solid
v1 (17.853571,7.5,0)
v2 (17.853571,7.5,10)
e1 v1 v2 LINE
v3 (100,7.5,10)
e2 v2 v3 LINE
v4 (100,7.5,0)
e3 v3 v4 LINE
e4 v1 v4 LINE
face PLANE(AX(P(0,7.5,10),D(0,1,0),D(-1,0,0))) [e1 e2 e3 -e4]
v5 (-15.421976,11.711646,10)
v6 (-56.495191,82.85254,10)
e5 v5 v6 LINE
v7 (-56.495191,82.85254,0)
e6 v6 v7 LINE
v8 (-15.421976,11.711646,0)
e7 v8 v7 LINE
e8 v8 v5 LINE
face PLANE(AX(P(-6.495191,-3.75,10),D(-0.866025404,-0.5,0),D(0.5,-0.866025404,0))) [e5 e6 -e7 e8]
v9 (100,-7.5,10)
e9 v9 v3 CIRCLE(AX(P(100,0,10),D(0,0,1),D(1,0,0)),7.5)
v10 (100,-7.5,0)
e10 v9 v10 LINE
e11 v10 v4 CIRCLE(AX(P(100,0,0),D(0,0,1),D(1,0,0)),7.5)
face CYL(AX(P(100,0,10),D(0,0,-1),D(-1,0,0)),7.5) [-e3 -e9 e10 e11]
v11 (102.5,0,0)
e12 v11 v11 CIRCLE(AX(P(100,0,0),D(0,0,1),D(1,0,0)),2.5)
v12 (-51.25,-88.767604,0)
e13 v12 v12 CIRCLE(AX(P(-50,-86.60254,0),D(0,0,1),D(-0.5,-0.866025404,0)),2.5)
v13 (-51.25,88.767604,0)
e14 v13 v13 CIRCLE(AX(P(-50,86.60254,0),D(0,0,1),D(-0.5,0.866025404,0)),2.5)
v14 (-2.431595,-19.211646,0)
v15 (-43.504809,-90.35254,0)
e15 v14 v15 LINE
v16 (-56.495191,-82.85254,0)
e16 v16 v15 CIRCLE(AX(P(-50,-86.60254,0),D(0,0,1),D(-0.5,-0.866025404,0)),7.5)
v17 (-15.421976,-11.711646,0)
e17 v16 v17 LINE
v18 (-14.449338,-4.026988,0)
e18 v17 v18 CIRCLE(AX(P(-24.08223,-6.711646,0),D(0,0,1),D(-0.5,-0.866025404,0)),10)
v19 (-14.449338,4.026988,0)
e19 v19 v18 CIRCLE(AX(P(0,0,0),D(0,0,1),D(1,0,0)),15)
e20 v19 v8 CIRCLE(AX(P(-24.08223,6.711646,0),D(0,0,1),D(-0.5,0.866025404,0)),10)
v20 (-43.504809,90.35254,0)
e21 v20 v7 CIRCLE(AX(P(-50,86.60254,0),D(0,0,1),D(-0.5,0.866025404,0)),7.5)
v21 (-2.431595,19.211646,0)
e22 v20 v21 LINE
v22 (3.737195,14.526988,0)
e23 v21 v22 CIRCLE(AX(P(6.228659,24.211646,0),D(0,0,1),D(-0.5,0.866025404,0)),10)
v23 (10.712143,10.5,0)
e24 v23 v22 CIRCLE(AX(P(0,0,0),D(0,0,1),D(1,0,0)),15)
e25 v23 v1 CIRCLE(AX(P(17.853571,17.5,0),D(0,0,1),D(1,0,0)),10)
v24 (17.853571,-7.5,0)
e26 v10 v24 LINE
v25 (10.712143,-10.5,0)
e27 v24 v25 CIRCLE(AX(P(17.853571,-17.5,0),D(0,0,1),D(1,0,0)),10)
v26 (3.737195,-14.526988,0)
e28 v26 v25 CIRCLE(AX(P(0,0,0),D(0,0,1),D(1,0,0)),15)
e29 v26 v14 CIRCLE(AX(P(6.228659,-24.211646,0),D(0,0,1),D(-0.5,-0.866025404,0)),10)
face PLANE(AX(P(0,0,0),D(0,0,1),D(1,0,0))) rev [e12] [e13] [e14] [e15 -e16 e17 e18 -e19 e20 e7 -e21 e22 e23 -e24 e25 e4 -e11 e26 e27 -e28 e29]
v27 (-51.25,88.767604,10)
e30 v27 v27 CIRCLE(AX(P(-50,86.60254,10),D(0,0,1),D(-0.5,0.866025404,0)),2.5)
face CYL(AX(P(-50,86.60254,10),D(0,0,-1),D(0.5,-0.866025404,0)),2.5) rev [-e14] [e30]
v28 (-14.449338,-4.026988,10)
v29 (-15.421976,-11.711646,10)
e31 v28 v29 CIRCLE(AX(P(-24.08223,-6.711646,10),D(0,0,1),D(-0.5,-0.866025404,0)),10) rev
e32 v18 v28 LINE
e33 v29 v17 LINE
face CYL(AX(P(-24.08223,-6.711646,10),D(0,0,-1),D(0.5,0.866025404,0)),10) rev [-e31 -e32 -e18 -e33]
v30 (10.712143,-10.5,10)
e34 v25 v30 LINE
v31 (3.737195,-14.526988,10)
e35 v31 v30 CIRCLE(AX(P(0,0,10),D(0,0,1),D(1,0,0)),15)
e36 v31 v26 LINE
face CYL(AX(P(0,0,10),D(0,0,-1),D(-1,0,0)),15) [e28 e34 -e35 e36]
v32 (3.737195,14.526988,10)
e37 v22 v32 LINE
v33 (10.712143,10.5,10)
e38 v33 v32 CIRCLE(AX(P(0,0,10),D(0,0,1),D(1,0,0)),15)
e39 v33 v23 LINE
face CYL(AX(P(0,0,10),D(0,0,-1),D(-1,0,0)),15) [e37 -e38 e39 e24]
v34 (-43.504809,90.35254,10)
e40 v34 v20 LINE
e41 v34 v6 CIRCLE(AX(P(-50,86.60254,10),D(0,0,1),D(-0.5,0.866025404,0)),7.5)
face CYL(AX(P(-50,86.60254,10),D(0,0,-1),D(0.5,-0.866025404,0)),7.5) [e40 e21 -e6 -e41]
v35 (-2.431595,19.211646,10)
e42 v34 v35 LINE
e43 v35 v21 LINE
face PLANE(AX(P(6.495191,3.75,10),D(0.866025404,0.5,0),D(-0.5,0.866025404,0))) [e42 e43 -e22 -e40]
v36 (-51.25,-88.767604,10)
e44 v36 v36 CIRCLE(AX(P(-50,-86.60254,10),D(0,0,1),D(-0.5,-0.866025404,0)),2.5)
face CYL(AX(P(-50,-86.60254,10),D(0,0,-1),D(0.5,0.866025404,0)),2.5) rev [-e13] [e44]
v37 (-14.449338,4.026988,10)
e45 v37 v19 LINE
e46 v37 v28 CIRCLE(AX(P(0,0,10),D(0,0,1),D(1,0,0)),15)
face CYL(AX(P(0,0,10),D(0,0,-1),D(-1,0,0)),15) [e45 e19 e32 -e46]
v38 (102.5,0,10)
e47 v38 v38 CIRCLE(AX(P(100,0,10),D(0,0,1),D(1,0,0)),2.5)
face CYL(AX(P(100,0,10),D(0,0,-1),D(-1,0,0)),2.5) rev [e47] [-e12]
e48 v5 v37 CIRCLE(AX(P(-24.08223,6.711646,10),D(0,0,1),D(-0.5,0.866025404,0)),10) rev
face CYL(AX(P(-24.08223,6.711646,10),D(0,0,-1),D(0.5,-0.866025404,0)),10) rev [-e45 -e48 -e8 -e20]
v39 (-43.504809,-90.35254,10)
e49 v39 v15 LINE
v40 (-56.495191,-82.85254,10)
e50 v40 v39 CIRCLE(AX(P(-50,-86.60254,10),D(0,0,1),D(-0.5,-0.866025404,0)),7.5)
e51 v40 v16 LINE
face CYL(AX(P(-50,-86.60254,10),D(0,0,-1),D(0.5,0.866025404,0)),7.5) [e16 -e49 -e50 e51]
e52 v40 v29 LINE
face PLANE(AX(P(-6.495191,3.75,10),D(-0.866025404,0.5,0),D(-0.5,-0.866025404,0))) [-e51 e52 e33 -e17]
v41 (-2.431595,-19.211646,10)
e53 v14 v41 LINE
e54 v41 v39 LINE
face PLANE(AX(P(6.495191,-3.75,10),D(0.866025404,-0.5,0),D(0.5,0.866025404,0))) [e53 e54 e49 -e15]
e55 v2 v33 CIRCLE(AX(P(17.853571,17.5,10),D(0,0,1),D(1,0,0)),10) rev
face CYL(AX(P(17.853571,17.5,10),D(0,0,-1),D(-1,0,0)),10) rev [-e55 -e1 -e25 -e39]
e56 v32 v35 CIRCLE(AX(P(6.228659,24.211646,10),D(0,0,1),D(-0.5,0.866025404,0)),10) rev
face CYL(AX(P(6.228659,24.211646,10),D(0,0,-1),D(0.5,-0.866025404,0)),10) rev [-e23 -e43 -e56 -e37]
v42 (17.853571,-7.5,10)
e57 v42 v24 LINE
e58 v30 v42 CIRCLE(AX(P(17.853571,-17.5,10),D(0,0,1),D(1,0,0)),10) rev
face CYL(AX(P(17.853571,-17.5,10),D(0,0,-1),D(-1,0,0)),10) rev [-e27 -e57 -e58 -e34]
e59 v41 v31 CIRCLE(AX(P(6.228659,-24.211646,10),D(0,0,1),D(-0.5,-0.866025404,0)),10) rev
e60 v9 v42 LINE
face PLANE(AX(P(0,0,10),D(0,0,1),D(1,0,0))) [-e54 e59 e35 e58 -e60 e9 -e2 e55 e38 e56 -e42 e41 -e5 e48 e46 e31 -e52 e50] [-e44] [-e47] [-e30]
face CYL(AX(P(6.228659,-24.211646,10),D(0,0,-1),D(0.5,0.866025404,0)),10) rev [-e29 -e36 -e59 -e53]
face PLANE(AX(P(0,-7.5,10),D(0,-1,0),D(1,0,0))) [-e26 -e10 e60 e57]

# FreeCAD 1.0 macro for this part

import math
import FreeCAD as App
import Part
import Sketcher
Q = App.Units.Quantity


def edges_at(feature, points):
    """Names of the edges that pass closest to the given points."""
    edges = feature.Shape.Edges
    near = lambda p: min(range(len(edges)), key=lambda i: edges[i].distToShape(Part.Vertex(*p))[0])
    return sorted({f"Edge{near(p) + 1}" for p in points})

doc = App.newDocument("Part")
body = doc.addObject("PartDesign::Body", "Body")

# Sketch on XY plane
sketch1 = doc.addObject("Sketcher::SketchObject", "Sketch")
body.addObject(sketch1)
sketch1.AttachmentSupport = (doc.XY_Plane, [""])
sketch1.MapMode = "FlatFace"
sketch1.addGeometry(Part.LineSegment(App.Vector(12.990381, -7.5, 0), App.Vector(100, -7.5, 0)), False)
sketch1.addGeometry(Part.ArcOfCircle(Part.Circle(App.Vector(100, 0, 0), App.Vector(0, 0, 1), 7.5), math.radians(-90), math.radians(90)), False)
sketch1.addGeometry(Part.LineSegment(App.Vector(100, 7.5, 0), App.Vector(12.990381, 7.5, 0)), False)
sketch1.addGeometry(Part.ArcOfCircle(Part.Circle(App.Vector(0, 0, 0), App.Vector(0, 0, 1), 15), math.radians(30), math.radians(330)), False)
sketch1.addGeometry(Part.Circle(App.Vector(100, 0, 0), App.Vector(0, 0, 1), 2.5), False)
sketch1.addConstraint(Sketcher.Constraint("Tangent", 0, 2, 1, 1))
sketch1.addConstraint(Sketcher.Constraint("Tangent", 1, 2, 2, 1))
sketch1.addConstraint(Sketcher.Constraint("Coincident", 2, 2, 3, 1))
sketch1.addConstraint(Sketcher.Constraint("Coincident", 3, 2, 0, 1))
sketch1.addConstraint(Sketcher.Constraint("Horizontal", 0))
sketch1.addConstraint(Sketcher.Constraint("Horizontal", 2))
sketch1.addConstraint(Sketcher.Constraint("Coincident", 3, 3, -1, 1))
sketch1.addConstraint(Sketcher.Constraint("Coincident", 4, 3, 1, 3))
sketch1.addConstraint(Sketcher.Constraint("PointOnObject", 1, 3, -1))
sketch1.addConstraint(Sketcher.Constraint("Diameter", 4, Q("5 mm")))
sketch1.addConstraint(Sketcher.Constraint("Radius", 3, Q("15 mm")))
sketch1.addConstraint(Sketcher.Constraint("Radius", 1, Q("7.5 mm")))
sketch1.addConstraint(Sketcher.Constraint("DistanceX", -1, 1, 1, 3, Q("100 mm")))
pad1 = doc.addObject("PartDesign::Pad", "Pad")
body.addObject(pad1)
pad1.Profile = sketch1
pad1.Length = 10
doc.recompute()

fillet = doc.addObject("PartDesign::Fillet", "Fillet")
body.addObject(fillet)
fillet.Base = (pad1, edges_at(pad1, [(12.99, -7.5, 5), (12.99, 7.5, 5)]))
fillet.Radius = 10
doc.recompute()

polarpattern = doc.addObject("PartDesign::PolarPattern", "PolarPattern")
body.addObject(polarpattern)
polarpattern.Originals = [pad1]
polarpattern.Axis = (doc.Z_Axis, [""])
polarpattern.Angle = 360
polarpattern.Occurrences = 3
body.Tip = polarpattern
doc.recompute()

fillet2 = doc.addObject("PartDesign::Fillet", "Fillet001")
body.addObject(fillet2)
fillet2.Base = (polarpattern, edges_at(polarpattern, [
    (0, 15, 5),
    (-12.99, 7.5, 5),
    (-12.99, -7.5, 5),
    (0, -15, 5),
]))
fillet2.Radius = 10

doc.recompute()
